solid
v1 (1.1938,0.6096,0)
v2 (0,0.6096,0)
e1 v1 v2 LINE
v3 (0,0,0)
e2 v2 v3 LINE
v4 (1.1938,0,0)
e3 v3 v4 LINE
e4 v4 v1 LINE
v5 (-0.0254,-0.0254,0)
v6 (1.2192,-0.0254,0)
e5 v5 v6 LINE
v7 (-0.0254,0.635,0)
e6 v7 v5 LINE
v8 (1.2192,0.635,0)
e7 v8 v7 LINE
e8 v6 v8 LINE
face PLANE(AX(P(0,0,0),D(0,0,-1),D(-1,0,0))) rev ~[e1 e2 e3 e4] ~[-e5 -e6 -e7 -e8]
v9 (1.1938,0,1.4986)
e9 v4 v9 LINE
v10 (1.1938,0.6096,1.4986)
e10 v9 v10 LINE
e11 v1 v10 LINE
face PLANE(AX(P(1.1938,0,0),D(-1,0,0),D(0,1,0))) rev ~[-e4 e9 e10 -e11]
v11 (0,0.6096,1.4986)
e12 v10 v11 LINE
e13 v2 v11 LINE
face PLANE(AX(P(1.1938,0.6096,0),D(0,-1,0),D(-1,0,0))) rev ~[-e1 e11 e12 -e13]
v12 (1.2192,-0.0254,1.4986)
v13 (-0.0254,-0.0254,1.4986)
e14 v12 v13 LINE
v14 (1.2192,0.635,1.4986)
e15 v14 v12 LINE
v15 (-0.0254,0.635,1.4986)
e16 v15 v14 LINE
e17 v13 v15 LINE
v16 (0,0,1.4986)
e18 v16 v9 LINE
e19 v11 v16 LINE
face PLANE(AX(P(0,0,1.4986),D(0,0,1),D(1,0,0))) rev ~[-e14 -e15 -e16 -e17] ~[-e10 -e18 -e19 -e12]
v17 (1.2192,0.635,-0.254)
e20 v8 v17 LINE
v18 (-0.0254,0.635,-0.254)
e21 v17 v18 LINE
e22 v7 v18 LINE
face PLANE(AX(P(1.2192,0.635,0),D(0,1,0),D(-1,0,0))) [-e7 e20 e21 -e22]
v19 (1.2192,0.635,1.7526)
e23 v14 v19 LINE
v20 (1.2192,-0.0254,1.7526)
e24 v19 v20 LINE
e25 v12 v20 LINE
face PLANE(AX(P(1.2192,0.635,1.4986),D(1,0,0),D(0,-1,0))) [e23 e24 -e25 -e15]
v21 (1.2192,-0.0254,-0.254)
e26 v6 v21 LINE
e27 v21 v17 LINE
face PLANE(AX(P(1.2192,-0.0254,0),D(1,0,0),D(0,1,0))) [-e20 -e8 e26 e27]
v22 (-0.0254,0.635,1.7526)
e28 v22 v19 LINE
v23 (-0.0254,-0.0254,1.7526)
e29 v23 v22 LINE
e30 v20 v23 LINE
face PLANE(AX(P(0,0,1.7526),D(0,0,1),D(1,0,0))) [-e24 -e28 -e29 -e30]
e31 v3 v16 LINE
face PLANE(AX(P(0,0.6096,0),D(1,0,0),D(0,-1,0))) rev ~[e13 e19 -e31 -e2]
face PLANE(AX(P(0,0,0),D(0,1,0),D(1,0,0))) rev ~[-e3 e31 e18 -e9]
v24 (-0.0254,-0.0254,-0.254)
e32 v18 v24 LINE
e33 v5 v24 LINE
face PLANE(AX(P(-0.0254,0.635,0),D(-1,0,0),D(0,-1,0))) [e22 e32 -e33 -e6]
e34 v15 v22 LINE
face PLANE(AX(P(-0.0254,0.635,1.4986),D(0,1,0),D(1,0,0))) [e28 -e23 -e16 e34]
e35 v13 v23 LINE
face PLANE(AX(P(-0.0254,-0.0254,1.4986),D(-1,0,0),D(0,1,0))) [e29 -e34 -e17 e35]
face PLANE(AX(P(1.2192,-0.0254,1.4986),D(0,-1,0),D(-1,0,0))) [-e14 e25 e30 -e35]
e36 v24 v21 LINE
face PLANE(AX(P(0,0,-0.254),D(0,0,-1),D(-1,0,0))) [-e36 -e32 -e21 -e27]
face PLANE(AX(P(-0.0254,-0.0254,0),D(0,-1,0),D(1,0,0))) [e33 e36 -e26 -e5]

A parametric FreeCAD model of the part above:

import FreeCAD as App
import Part
import Sketcher

V = App.Vector
Q = App.Units.Quantity


def add_polygon(sketch, points):
    """Adds a closed chain of lines whose ends are joined by coincident constraints."""
    first, n = sketch.GeometryCount, len(points)
    for a, b in zip(points, points[1:] + points[:1]):
        sketch.addGeometry(Part.LineSegment(App.Vector(*a, 0), App.Vector(*b, 0)), False)
    for i in range(n):
        sketch.addConstraint(Sketcher.Constraint("Coincident", first + i, 2, first + (i + 1) % n, 1))

doc = App.newDocument("Part")
body = doc.addObject("PartDesign::Body", "Body")

sketch1 = body.newObject("Sketcher::SketchObject", "Sketch")
sketch1.AttachmentSupport = (doc.getObject("XY_Plane"), [""])
sketch1.MapMode = "FlatFace"
add_polygon(sketch1, [(0, 0.6096), (0, 0), (1.1938, 0), (1.1938, 0.6096)])
sketch1.addConstraint(Sketcher.Constraint("Vertical", 0))
sketch1.addConstraint(Sketcher.Constraint("Horizontal", 1))
sketch1.addConstraint(Sketcher.Constraint("Vertical", 2))
sketch1.addConstraint(Sketcher.Constraint("Horizontal", 3))
sketch1.addConstraint(Sketcher.Constraint("Coincident", 0, 2, -1, 1))
sketch1.addConstraint(Sketcher.Constraint("DistanceX", 1, 1, 1, 2, Q("0.047 in")))
sketch1.addConstraint(Sketcher.Constraint("DistanceY", 0, 2, 0, 1, Q("0.024 in")))
pad1 = body.newObject("PartDesign::Pad", "Pad")
pad1.Profile = sketch1
pad1.Length = Q("0.059 in")

sketch2 = body.newObject("Sketcher::SketchObject", "Sketch001")
sketch2.AttachmentSupport = (doc.getObject("XY_Plane"), [""])
sketch2.MapMode = "FlatFace"
sketch2.AttachmentOffset = App.Placement(V(0, 0, 0.059 * 25.4), App.Rotation())
add_polygon(sketch2, [(1.2192, 0.635), (-0.0254, 0.635), (-0.0254, -0.0254), (1.2192, -0.0254)])
sketch2.addConstraint(Sketcher.Constraint("Horizontal", 0))
sketch2.addConstraint(Sketcher.Constraint("Vertical", 1))
sketch2.addConstraint(Sketcher.Constraint("Horizontal", 2))
sketch2.addConstraint(Sketcher.Constraint("Vertical", 3))
sketch2.addConstraint(Sketcher.Constraint("DistanceX", 0, 2, -1, 1, Q("0.001 in")))
sketch2.addConstraint(Sketcher.Constraint("DistanceY", 1, 2, -1, 1, Q("0.001 in")))
sketch2.addConstraint(Sketcher.Constraint("DistanceX", 0, 2, 0, 1, Q("0.049 in")))
sketch2.addConstraint(Sketcher.Constraint("DistanceY", 1, 2, 1, 1, Q("0.026 in")))
pad2 = body.newObject("PartDesign::Pad", "Pad001")
pad2.Profile = sketch2
pad2.Length = Q("0.01 in")

sketch3 = body.newObject("Sketcher::SketchObject", "Sketch002")
sketch3.AttachmentSupport = (doc.getObject("XY_Plane"), [""])
sketch3.MapMode = "FlatFace"
add_polygon(sketch3, [(1.2192, -0.0254), (-0.0254, -0.0254), (-0.0254, 0.635), (1.2192, 0.635)])
sketch3.addConstraint(Sketcher.Constraint("Horizontal", 0))
sketch3.addConstraint(Sketcher.Constraint("Vertical", 1))
sketch3.addConstraint(Sketcher.Constraint("Horizontal", 2))
sketch3.addConstraint(Sketcher.Constraint("Vertical", 3))
sketch3.addConstraint(Sketcher.Constraint("DistanceX", 0, 2, 0, 1, Q("0.049 in")))
sketch3.addConstraint(Sketcher.Constraint("DistanceY", 1, 1, 1, 2, Q("0.026 in")))
sketch3.addConstraint(Sketcher.Constraint("DistanceX", 0, 2, -1, 1, Q("0.001 in")))
sketch3.addConstraint(Sketcher.Constraint("DistanceY", 0, 2, -1, 1, Q("0.001 in")))
pad3 = body.newObject("PartDesign::Pad", "Pad002")
pad3.Profile = sketch3
pad3.Length = Q("0.01 in")
pad3.Reversed = True

doc.recompute()
